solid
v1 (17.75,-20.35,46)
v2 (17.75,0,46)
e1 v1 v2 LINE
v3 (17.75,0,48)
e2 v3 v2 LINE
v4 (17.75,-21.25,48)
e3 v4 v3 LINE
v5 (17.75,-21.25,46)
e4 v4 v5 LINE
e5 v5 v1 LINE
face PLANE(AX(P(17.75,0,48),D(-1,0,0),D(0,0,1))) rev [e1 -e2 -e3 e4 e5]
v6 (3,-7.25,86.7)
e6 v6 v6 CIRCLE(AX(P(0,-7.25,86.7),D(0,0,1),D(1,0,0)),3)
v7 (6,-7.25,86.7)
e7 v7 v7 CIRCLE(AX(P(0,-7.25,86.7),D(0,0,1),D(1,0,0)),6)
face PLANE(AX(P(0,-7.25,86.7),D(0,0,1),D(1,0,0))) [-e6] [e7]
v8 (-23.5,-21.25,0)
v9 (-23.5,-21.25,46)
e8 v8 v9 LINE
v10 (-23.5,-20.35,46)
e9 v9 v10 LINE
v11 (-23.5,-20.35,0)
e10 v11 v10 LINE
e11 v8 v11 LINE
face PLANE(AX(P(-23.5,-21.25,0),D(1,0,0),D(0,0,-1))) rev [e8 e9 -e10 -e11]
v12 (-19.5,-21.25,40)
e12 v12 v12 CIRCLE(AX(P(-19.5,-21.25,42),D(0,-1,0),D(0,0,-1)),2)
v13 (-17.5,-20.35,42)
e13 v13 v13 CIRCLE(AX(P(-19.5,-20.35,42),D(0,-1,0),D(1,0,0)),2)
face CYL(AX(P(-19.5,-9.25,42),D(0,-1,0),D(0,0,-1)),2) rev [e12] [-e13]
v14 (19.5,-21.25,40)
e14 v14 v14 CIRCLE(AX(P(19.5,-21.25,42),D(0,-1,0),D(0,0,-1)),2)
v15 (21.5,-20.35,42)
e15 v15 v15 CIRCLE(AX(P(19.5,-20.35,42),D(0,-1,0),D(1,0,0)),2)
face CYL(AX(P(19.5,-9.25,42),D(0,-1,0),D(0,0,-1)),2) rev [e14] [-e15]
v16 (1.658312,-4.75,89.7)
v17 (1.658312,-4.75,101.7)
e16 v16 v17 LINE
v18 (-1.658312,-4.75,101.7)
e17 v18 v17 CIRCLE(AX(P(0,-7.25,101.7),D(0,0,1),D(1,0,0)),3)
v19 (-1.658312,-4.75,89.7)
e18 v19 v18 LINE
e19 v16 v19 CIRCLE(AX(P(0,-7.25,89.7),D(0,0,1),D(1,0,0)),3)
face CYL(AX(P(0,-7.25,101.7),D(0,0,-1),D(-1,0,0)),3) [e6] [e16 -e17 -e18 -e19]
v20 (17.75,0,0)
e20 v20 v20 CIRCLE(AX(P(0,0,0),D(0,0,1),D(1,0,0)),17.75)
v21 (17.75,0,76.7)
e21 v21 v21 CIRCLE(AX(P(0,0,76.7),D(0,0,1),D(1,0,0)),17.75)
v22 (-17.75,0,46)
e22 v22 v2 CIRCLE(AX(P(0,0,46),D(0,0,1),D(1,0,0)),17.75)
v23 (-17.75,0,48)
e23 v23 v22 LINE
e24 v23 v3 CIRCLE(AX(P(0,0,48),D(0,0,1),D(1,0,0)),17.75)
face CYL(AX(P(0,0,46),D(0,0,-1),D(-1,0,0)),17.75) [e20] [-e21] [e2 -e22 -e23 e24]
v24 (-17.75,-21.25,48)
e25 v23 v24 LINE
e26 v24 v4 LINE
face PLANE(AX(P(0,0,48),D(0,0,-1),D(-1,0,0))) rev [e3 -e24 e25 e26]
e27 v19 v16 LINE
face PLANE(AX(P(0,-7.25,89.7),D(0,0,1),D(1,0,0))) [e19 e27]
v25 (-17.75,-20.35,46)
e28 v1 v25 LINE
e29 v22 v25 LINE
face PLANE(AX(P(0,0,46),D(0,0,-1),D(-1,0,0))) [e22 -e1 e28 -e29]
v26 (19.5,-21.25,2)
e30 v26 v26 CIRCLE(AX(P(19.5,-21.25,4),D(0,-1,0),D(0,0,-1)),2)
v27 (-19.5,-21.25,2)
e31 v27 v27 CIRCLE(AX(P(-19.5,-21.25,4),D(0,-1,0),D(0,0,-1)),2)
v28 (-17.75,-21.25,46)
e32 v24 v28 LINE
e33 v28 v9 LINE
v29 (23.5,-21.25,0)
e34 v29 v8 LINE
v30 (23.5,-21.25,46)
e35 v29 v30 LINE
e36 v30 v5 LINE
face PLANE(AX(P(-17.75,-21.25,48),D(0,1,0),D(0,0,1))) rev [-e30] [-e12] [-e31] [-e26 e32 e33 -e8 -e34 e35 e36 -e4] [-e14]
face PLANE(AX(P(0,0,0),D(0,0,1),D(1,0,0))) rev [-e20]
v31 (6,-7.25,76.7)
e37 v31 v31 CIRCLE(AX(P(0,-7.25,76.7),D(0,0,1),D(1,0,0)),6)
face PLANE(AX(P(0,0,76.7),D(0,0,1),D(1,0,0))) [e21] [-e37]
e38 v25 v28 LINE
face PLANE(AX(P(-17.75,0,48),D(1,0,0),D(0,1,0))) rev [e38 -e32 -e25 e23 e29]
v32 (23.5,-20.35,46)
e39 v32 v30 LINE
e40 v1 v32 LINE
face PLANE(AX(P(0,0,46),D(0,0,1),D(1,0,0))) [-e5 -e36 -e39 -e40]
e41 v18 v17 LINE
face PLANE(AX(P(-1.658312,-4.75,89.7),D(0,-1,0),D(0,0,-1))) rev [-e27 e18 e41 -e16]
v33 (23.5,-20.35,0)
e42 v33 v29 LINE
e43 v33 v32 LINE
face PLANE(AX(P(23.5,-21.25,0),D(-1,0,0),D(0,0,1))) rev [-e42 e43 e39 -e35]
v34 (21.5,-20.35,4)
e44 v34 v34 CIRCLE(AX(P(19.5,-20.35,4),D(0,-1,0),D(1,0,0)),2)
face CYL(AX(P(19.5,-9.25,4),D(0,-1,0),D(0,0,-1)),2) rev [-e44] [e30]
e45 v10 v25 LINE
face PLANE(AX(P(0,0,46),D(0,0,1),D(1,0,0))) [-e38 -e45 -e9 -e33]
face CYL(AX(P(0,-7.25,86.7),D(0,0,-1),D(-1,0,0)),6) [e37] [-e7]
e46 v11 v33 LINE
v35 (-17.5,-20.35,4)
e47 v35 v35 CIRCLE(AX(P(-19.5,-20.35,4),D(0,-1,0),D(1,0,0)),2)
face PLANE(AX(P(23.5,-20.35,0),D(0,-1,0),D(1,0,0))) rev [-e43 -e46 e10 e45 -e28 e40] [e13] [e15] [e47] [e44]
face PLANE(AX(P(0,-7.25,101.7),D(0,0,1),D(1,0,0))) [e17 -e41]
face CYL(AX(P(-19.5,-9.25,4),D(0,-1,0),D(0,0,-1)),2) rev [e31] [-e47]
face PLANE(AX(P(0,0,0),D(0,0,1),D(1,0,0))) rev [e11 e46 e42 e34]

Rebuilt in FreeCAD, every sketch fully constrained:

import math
import FreeCAD as App
import Part
import Sketcher
Q = App.Units.Quantity

doc = App.newDocument("Part")
body = doc.addObject("PartDesign::Body", "Body")

# Sketch on XY plane
sketch1 = body.newObject("Sketcher::SketchObject", "Sketch")
sketch1.AttachmentSupport = (doc.getObject("XY_Plane"), [""])
sketch1.MapMode = "FlatFace"
sketch1.addGeometry(Part.Circle(App.Vector(0, 0, 0), App.Vector(0, 0, 1), 17.75), False)
sketch1.addConstraint([
    Sketcher.Constraint("Coincident", 0, 3, -1, 1),
    Sketcher.Constraint("Diameter", 0, Q("35.5 mm")),
])
pad1 = body.newObject("PartDesign::Pad", "Pad")
pad1.Profile = sketch1
pad1.Length = 46

# Sketch on XY plane
sketch2 = body.newObject("Sketcher::SketchObject", "Sketch001")
sketch2.AttachmentSupport = (doc.getObject("XY_Plane"), [""])
sketch2.MapMode = "FlatFace"
sketch2.AttachmentOffset = App.Placement(App.Vector(0, 0, 46), App.Rotation())
sketch2.addGeometry([
    Part.LineSegment(App.Vector(-17.75, -21.25, 0), App.Vector(17.75, -21.25, 0)),
    Part.LineSegment(App.Vector(17.75, -21.25, 0), App.Vector(17.75, 0, 0)),
    Part.ArcOfCircle(Part.Circle(App.Vector(0, 0, 0), App.Vector(0, 0, 1), 17.75), math.radians(0), math.radians(180)),
    Part.LineSegment(App.Vector(-17.75, 0, 0), App.Vector(-17.75, -21.25, 0)),
], False)
sketch2.addConstraint([
    Sketcher.Constraint("Coincident", 0, 2, 1, 1),
    Sketcher.Constraint("Tangent", 1, 2, 2, 1),
    Sketcher.Constraint("Tangent", 2, 2, 3, 1),
    Sketcher.Constraint("Coincident", 3, 2, 0, 1),
    Sketcher.Constraint("Horizontal", 0),
    Sketcher.Constraint("Vertical", 1),
    Sketcher.Constraint("Vertical", 3),
    Sketcher.Constraint("Coincident", 2, 3, -1, 1),
    Sketcher.Constraint("Radius", 2, Q("17.75 mm")),
    Sketcher.Constraint("DistanceY", 1, 1, 1, 2, Q("21.25 mm")),
])
pad2 = body.newObject("PartDesign::Pad", "Pad001")
pad2.Profile = sketch2
pad2.Length = 2

# Sketch on XY plane
sketch3 = body.newObject("Sketcher::SketchObject", "Sketch002")
sketch3.AttachmentSupport = (doc.getObject("XY_Plane"), [""])
sketch3.MapMode = "FlatFace"
sketch3.AttachmentOffset = App.Placement(App.Vector(0, 0, 46), App.Rotation())
sketch3.addGeometry([
    Part.LineSegment(App.Vector(-23.5, -21.25, 0), App.Vector(-23.5, -20.35, 0)),
    Part.LineSegment(App.Vector(-23.5, -20.35, 0), App.Vector(23.5, -20.35, 0)),
    Part.LineSegment(App.Vector(23.5, -20.35, 0), App.Vector(23.5, -21.25, 0)),
    Part.LineSegment(App.Vector(23.5, -21.25, 0), App.Vector(-23.5, -21.25, 0)),
], False)
sketch3.addConstraint([
    Sketcher.Constraint("Coincident", 0, 2, 1, 1),
    Sketcher.Constraint("Coincident", 1, 2, 2, 1),
    Sketcher.Constraint("Coincident", 2, 2, 3, 1),
    Sketcher.Constraint("Coincident", 3, 2, 0, 1),
    Sketcher.Constraint("Vertical", 0),
    Sketcher.Constraint("Horizontal", 1),
    Sketcher.Constraint("Vertical", 2),
    Sketcher.Constraint("Horizontal", 3),
    Sketcher.Constraint("DistanceX", 1, 1, 1, 2, Q("47 mm")),
    Sketcher.Constraint("DistanceY", 0, 1, 0, 2, Q("0.9 mm")),
    Sketcher.Constraint("DistanceX", 0, 2, -1, 1, Q("23.5 mm")),
    Sketcher.Constraint("DistanceY", 0, 2, -1, 1, Q("20.35 mm")),
])
pad3 = body.newObject("PartDesign::Pad", "Pad002")
pad3.Profile = sketch3
pad3.Length = 46
pad3.Reversed = True

# Sketch on XY plane
sketch4 = body.newObject("Sketcher::SketchObject", "Sketch003")
sketch4.AttachmentSupport = (doc.getObject("XY_Plane"), [""])
sketch4.MapMode = "FlatFace"
sketch4.AttachmentOffset = App.Placement(App.Vector(0, 0, 48), App.Rotation())
sketch4.addGeometry(Part.Circle(App.Vector(0, 0, 0), App.Vector(0, 0, 1), 17.75), False)
sketch4.addConstraint([
    Sketcher.Constraint("Coincident", 0, 3, -1, 1),
    Sketcher.Constraint("Diameter", 0, Q("35.5 mm")),
])
pad4 = body.newObject("PartDesign::Pad", "Pad003")
pad4.Profile = sketch4
pad4.Length = 28.7

# Sketch on XY plane
sketch5 = body.newObject("Sketcher::SketchObject", "Sketch004")
sketch5.AttachmentSupport = (doc.getObject("XY_Plane"), [""])
sketch5.MapMode = "FlatFace"
sketch5.AttachmentOffset = App.Placement(App.Vector(0, 0, 76.7), App.Rotation())
sketch5.addGeometry(Part.Circle(App.Vector(0, -7.25, 0), App.Vector(0, 0, 1), 6), False)
sketch5.addConstraint([
    Sketcher.Constraint("PointOnObject", 0, 3, -2),
    Sketcher.Constraint("Diameter", 0, Q("12 mm")),
    Sketcher.Constraint("DistanceY", 0, 3, -1, 1, Q("7.25 mm")),
])
pad5 = body.newObject("PartDesign::Pad", "Pad004")
pad5.Profile = sketch5
pad5.Length = 10

# Sketch on XY plane
sketch6 = body.newObject("Sketcher::SketchObject", "Sketch005")
sketch6.AttachmentSupport = (doc.getObject("XY_Plane"), [""])
sketch6.MapMode = "FlatFace"
sketch6.AttachmentOffset = App.Placement(App.Vector(0, 0, 86.7), App.Rotation())
sketch6.addGeometry(Part.Circle(App.Vector(0, -7.25, 0), App.Vector(0, 0, 1), 3), False)
sketch6.addConstraint([
    Sketcher.Constraint("PointOnObject", 0, 3, -2),
    Sketcher.Constraint("Diameter", 0, Q("6 mm")),
    Sketcher.Constraint("DistanceY", 0, 3, -1, 1, Q("7.25 mm")),
])
pad6 = body.newObject("PartDesign::Pad", "Pad005")
pad6.Profile = sketch6
pad6.Length = 15

# Sketch on XY plane
sketch7 = body.newObject("Sketcher::SketchObject", "Sketch006")
sketch7.AttachmentSupport = (doc.getObject("XY_Plane"), [""])
sketch7.MapMode = "FlatFace"
sketch7.AttachmentOffset = App.Placement(App.Vector(0, 0, 89.7), App.Rotation())
sketch7.addGeometry([
    Part.LineSegment(App.Vector(-1.658312, -4.75, 0), App.Vector(1.658312, -4.75, 0)),
    Part.ArcOfCircle(Part.Circle(App.Vector(0, -7.25, 0), App.Vector(0, 0, 1), 3), math.radians(56.44269), math.radians(123.55731)),
], False)
sketch7.addConstraint([
    Sketcher.Constraint("Coincident", 0, 1, 1, 2),
    Sketcher.Constraint("Coincident", 1, 1, 0, 2),
    Sketcher.Constraint("Horizontal", 0),
    Sketcher.Constraint("PointOnObject", 1, 3, -2),
    Sketcher.Constraint("Radius", 1, Q("3 mm")),
    Sketcher.Constraint("DistanceY", 1, 3, 0, 1, Q("2.5 mm")),
    Sketcher.Constraint("DistanceY", 1, 3, -1, 1, Q("7.25 mm")),
])
pocket1 = body.newObject("PartDesign::Pocket", "Pocket")
pocket1.Profile = sketch7
pocket1.Length = 12
pocket1.Reversed = True

# Sketch on XZ plane
sketch8 = body.newObject("Sketcher::SketchObject", "Sketch007")
sketch8.AttachmentSupport = (doc.getObject("XZ_Plane"), [""])
sketch8.MapMode = "FlatFace"
sketch8.AttachmentOffset = App.Placement(App.Vector(0, 0, 21.25), App.Rotation())
sketch8.addGeometry([
    Part.Circle(App.Vector(-19.5, 42, 0), App.Vector(0, 0, 1), 2),
    Part.Circle(App.Vector(19.5, 42, 0), App.Vector(0, 0, 1), 2),
    Part.Circle(App.Vector(-19.5, 4, 0), App.Vector(0, 0, 1), 2),
    Part.Circle(App.Vector(19.5, 4, 0), App.Vector(0, 0, 1), 2),
], False)
sketch8.addConstraint([
    Sketcher.Constraint("Equal", 0, 1),
    Sketcher.Constraint("Equal", 1, 2),
    Sketcher.Constraint("Equal", 2, 3),
    Sketcher.Constraint("Symmetric", 0, 3, 1, 3, -2),
    Sketcher.Constraint("Symmetric", 2, 3, 3, 3, -2),
    Sketcher.Constraint("Vertical", 0, 3, 2, 3),
    Sketcher.Constraint("Diameter", 0, Q("4 mm")),
    Sketcher.Constraint("DistanceY", -1, 1, 0, 3, Q("42 mm")),
    Sketcher.Constraint("DistanceY", -1, 1, 2, 3, Q("4 mm")),
    Sketcher.Constraint("DistanceX", 0, 3, 1, 3, Q("39 mm")),
])
pocket2 = body.newObject("PartDesign::Pocket", "Pocket001")
pocket2.Profile = sketch8
pocket2.Length = 12

doc.recompute()
